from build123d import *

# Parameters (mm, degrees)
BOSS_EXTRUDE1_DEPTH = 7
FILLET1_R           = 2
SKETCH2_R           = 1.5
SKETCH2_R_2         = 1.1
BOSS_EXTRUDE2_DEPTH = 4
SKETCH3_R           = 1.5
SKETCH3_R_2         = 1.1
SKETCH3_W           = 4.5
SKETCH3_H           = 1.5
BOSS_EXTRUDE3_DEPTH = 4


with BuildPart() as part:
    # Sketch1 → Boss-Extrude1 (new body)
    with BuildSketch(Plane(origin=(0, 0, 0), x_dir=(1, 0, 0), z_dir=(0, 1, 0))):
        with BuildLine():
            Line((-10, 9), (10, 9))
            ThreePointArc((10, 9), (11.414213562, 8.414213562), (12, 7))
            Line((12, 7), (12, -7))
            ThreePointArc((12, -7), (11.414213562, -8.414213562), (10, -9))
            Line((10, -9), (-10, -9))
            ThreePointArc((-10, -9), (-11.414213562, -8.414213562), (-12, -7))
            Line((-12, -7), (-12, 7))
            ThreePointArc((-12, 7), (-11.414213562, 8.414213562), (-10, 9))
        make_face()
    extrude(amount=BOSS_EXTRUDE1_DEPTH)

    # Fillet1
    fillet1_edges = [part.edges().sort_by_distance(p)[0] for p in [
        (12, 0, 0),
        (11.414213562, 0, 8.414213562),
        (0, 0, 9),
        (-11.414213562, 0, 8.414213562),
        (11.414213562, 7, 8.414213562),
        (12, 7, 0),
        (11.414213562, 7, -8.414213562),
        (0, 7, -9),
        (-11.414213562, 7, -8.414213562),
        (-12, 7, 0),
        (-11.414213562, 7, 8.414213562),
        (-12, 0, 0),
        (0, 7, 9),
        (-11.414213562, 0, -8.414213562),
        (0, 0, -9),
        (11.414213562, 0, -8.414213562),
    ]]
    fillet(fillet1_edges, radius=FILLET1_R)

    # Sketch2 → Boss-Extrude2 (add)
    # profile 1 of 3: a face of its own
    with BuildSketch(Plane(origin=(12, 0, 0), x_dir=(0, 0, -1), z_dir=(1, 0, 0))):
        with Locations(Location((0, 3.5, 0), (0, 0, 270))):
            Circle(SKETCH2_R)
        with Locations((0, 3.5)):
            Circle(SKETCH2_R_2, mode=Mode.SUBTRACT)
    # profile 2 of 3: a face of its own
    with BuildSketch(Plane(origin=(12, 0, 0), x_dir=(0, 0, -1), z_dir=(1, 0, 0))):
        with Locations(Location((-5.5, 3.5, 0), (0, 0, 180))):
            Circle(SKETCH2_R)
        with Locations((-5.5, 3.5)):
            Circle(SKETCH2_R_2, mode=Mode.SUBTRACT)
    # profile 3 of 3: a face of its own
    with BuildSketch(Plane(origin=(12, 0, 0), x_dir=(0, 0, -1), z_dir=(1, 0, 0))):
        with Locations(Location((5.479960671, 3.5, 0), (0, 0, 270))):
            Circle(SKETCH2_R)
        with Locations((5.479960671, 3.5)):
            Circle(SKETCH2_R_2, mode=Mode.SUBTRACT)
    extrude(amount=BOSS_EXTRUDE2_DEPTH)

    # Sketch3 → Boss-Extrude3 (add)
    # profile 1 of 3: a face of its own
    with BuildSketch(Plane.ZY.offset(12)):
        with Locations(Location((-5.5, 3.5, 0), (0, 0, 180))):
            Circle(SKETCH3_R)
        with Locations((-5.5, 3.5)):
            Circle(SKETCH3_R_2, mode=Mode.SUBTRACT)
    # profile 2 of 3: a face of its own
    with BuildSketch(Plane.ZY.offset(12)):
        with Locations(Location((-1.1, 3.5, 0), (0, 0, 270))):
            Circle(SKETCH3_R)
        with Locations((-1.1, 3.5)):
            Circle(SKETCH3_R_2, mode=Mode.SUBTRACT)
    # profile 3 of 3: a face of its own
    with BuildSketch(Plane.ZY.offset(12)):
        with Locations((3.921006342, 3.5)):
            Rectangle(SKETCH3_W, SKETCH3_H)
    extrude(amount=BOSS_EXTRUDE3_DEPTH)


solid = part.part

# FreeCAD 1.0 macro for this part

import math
import FreeCAD as App
import Part
import Sketcher


def edges_at(feature, points):
    """Names of the edges that pass closest to the given points."""
    edges = feature.Shape.Edges
    near = lambda p: min(range(len(edges)), key=lambda i: edges[i].distToShape(Part.Vertex(*p))[0])
    return sorted({f"Edge{near(p) + 1}" for p in points})


def add_polygon(sketch, points):
    """Adds a closed chain of lines whose ends are joined by coincident constraints."""
    first, n = sketch.GeometryCount, len(points)
    for a, b in zip(points, points[1:] + points[:1]):
        sketch.addGeometry(Part.LineSegment(App.Vector(*a, 0), App.Vector(*b, 0)), False)
    for i in range(n):
        sketch.addConstraint(Sketcher.Constraint("Coincident", first + i, 2, first + (i + 1) % n, 1))

doc = App.newDocument("Part")
body = doc.addObject("PartDesign::Body", "Body")

# Sketch on XZ plane
sketch1 = doc.addObject("Sketcher::SketchObject", "Sketch")
body.addObject(sketch1)
sketch1.AttachmentSupport = (doc.XZ_Plane, [""])
sketch1.MapMode = "FlatFace"
sketch1.addGeometry(Part.LineSegment(App.Vector(10, -9, 0), App.Vector(-10, -9, 0)), False)
sketch1.addGeometry(Part.ArcOfCircle(Part.Circle(App.Vector(-10, -7, 0), App.Vector(0, 0, 1), 2), math.radians(-180), math.radians(-90)), False)
sketch1.addGeometry(Part.LineSegment(App.Vector(-12, -7, 0), App.Vector(-12, 7, 0)), False)
sketch1.addGeometry(Part.ArcOfCircle(Part.Circle(App.Vector(-10, 7, 0), App.Vector(0, 0, 1), 2), math.radians(90), math.radians(180)), False)
sketch1.addGeometry(Part.LineSegment(App.Vector(-10, 9, 0), App.Vector(10, 9, 0)), False)
sketch1.addGeometry(Part.ArcOfCircle(Part.Circle(App.Vector(10, 7, 0), App.Vector(0, 0, 1), 2), math.radians(0), math.radians(90)), False)
sketch1.addGeometry(Part.LineSegment(App.Vector(12, 7, 0), App.Vector(12, -7, 0)), False)
sketch1.addGeometry(Part.ArcOfCircle(Part.Circle(App.Vector(10, -7, 0), App.Vector(0, 0, 1), 2), math.radians(-90), math.radians(0)), False)
sketch1.addConstraint(Sketcher.Constraint("Tangent", 0, 2, 1, 2))
sketch1.addConstraint(Sketcher.Constraint("Tangent", 1, 1, 2, 1))
sketch1.addConstraint(Sketcher.Constraint("Tangent", 2, 2, 3, 2))
sketch1.addConstraint(Sketcher.Constraint("Tangent", 3, 1, 4, 1))
sketch1.addConstraint(Sketcher.Constraint("Tangent", 4, 2, 5, 2))
sketch1.addConstraint(Sketcher.Constraint("Tangent", 5, 1, 6, 1))
sketch1.addConstraint(Sketcher.Constraint("Tangent", 6, 2, 7, 2))
sketch1.addConstraint(Sketcher.Constraint("Tangent", 7, 1, 0, 1))
sketch1.addConstraint(Sketcher.Constraint("Horizontal", 0))
sketch1.addConstraint(Sketcher.Constraint("Vertical", 2))
sketch1.addConstraint(Sketcher.Constraint("Horizontal", 4))
sketch1.addConstraint(Sketcher.Constraint("Vertical", 6))
sketch1.addConstraint(Sketcher.Constraint("Equal", 1, 3))
sketch1.addConstraint(Sketcher.Constraint("Equal", 3, 5))
sketch1.addConstraint(Sketcher.Constraint("Equal", 5, 7))
sketch1.addConstraint(Sketcher.Constraint("Symmetric", 1, 3, 5, 3, -1, 1))
sketch1.addConstraint(Sketcher.Constraint("Radius", 1, 2.0))
sketch1.addConstraint(Sketcher.Constraint("DistanceX", 0, 2, 0, 1, 20.0))
sketch1.addConstraint(Sketcher.Constraint("DistanceY", 2, 1, 2, 2, 14.0))
pad1 = doc.addObject("PartDesign::Pad", "Pad")
body.addObject(pad1)
pad1.Profile = sketch1
pad1.Length = 7
pad1.Reversed = True
doc.recompute()

fillet = doc.addObject("PartDesign::Fillet", "Fillet")
body.addObject(fillet)
fillet.Base = (pad1, edges_at(pad1, [
    (12, 0, 0),
    (11.414, 0, 8.414),
    (0, 0, 9),
    (-11.414, 0, 8.414),
    (11.414, 7, 8.414),
    (12, 7, 0),
    (11.414, 7, -8.414),
    (0, 7, -9),
    (-11.414, 7, -8.414),
    (-12, 7, 0),
    (-11.414, 7, 8.414),
    (-12, 0, 0),
    (0, 7, 9),
    (-11.414, 0, -8.414),
    (0, 0, -9),
    (11.414, 0, -8.414),
]))
fillet.Radius = 2

# Sketch on YZ plane
sketch2 = doc.addObject("Sketcher::SketchObject", "Sketch001")
body.addObject(sketch2)
sketch2.AttachmentSupport = (doc.YZ_Plane, [""])
sketch2.MapMode = "FlatFace"
sketch2.AttachmentOffset = App.Placement(App.Vector(0, 0, 12), App.Rotation())
sketch2.addGeometry(Part.Circle(App.Vector(3.5, 0, 0), App.Vector(0, 0, 1), 1.5), False)
sketch2.addGeometry(Part.Circle(App.Vector(3.5, 0, 0), App.Vector(0, 0, 1), 1.1), False)
sketch2.addGeometry(Part.Circle(App.Vector(3.5, 5.5, 0), App.Vector(0, 0, 1), 1.5), False)
sketch2.addGeometry(Part.Circle(App.Vector(3.5, 5.5, 0), App.Vector(0, 0, 1), 1.1), False)
sketch2.addGeometry(Part.Circle(App.Vector(3.5, -5.5, 0), App.Vector(0, 0, 1), 1.5), False)
sketch2.addGeometry(Part.Circle(App.Vector(3.5, -5.5, 0), App.Vector(0, 0, 1), 1.1), False)
sketch2.addConstraint(Sketcher.Constraint("Coincident", 1, 3, 0, 3))
sketch2.addConstraint(Sketcher.Constraint("Coincident", 3, 3, 2, 3))
sketch2.addConstraint(Sketcher.Constraint("Coincident", 5, 3, 4, 3))
sketch2.addConstraint(Sketcher.Constraint("Equal", 0, 2))
sketch2.addConstraint(Sketcher.Constraint("Equal", 1, 3))
sketch2.addConstraint(Sketcher.Constraint("Equal", 2, 4))
sketch2.addConstraint(Sketcher.Constraint("Equal", 3, 5))
sketch2.addConstraint(Sketcher.Constraint("PointOnObject", 0, 3, -1))
sketch2.addConstraint(Sketcher.Constraint("Vertical", 1, 3, 2, 3))
sketch2.addConstraint(Sketcher.Constraint("Vertical", 3, 3, 4, 3))
sketch2.addConstraint(Sketcher.Constraint("Diameter", 0, 3.0))
sketch2.addConstraint(Sketcher.Constraint("Diameter", 1, 2.2))
sketch2.addConstraint(Sketcher.Constraint("DistanceX", -1, 1, 0, 3, 3.5))
sketch2.addConstraint(Sketcher.Constraint("DistanceY", -1, 1, 2, 3, 5.5))
sketch2.addConstraint(Sketcher.Constraint("DistanceY", 4, 3, -1, 1, 5.479961))
pad2 = doc.addObject("PartDesign::Pad", "Pad001")
body.addObject(pad2)
pad2.Profile = sketch2
pad2.Length = 4

# Sketch on YZ plane
sketch3 = doc.addObject("Sketcher::SketchObject", "Sketch002")
body.addObject(sketch3)
sketch3.AttachmentSupport = (doc.YZ_Plane, [""])
sketch3.MapMode = "FlatFace"
sketch3.AttachmentOffset = App.Placement(App.Vector(0, 0, -12), App.Rotation())
sketch3.addGeometry(Part.Circle(App.Vector(3.5, -5.5, 0), App.Vector(0, 0, 1), 1.5), False)  # 0
sketch3.addGeometry(Part.Circle(App.Vector(3.5, -5.5, 0), App.Vector(0, 0, 1), 1.1), False)  # 1
sketch3.addGeometry(Part.Circle(App.Vector(3.5, -1.1, 0), App.Vector(0, 0, 1), 1.5), False)  # 2
sketch3.addGeometry(Part.Circle(App.Vector(3.5, -1.1, 0), App.Vector(0, 0, 1), 1.1), False)  # 3
add_polygon(sketch3, [(4.2, 1.7), (2.8, 1.7), (2.8, 6.2), (4.2, 6.2)])  # lines 4-7
sketch3.addConstraint(Sketcher.Constraint("Horizontal", 4))
sketch3.addConstraint(Sketcher.Constraint("Vertical", 5))
sketch3.addConstraint(Sketcher.Constraint("Horizontal", 6))
sketch3.addConstraint(Sketcher.Constraint("Vertical", 7))
sketch3.addConstraint(Sketcher.Constraint("Coincident", 1, 3, 0, 3))
sketch3.addConstraint(Sketcher.Constraint("Coincident", 3, 3, 2, 3))
sketch3.addConstraint(Sketcher.Constraint("Equal", 0, 2))
sketch3.addConstraint(Sketcher.Constraint("Equal", 1, 3))
sketch3.addConstraint(Sketcher.Constraint("Vertical", 1, 3, 2, 3))
sketch3.addConstraint(Sketcher.Constraint("Diameter", 0, 3.0))
sketch3.addConstraint(Sketcher.Constraint("Diameter", 1, 2.2))
sketch3.addConstraint(Sketcher.Constraint("DistanceX", 4, 2, 4, 1, 1.5))
sketch3.addConstraint(Sketcher.Constraint("DistanceY", 5, 1, 5, 2, 4.5))
sketch3.addConstraint(Sketcher.Constraint("DistanceX", -1, 1, 0, 3, 3.5))
sketch3.addConstraint(Sketcher.Constraint("DistanceY", 0, 3, -1, 1, 5.5))
sketch3.addConstraint(Sketcher.Constraint("DistanceY", 2, 3, -1, 1, 1.1))
sketch3.addConstraint(Sketcher.Constraint("DistanceX", -1, 1, 4, 2, 2.75))
sketch3.addConstraint(Sketcher.Constraint("DistanceY", -1, 1, 4, 2, 1.671006))
pad3 = doc.addObject("PartDesign::Pad", "Pad002")
body.addObject(pad3)
pad3.Profile = sketch3
pad3.Length = 4
pad3.Reversed = True

doc.recompute()
